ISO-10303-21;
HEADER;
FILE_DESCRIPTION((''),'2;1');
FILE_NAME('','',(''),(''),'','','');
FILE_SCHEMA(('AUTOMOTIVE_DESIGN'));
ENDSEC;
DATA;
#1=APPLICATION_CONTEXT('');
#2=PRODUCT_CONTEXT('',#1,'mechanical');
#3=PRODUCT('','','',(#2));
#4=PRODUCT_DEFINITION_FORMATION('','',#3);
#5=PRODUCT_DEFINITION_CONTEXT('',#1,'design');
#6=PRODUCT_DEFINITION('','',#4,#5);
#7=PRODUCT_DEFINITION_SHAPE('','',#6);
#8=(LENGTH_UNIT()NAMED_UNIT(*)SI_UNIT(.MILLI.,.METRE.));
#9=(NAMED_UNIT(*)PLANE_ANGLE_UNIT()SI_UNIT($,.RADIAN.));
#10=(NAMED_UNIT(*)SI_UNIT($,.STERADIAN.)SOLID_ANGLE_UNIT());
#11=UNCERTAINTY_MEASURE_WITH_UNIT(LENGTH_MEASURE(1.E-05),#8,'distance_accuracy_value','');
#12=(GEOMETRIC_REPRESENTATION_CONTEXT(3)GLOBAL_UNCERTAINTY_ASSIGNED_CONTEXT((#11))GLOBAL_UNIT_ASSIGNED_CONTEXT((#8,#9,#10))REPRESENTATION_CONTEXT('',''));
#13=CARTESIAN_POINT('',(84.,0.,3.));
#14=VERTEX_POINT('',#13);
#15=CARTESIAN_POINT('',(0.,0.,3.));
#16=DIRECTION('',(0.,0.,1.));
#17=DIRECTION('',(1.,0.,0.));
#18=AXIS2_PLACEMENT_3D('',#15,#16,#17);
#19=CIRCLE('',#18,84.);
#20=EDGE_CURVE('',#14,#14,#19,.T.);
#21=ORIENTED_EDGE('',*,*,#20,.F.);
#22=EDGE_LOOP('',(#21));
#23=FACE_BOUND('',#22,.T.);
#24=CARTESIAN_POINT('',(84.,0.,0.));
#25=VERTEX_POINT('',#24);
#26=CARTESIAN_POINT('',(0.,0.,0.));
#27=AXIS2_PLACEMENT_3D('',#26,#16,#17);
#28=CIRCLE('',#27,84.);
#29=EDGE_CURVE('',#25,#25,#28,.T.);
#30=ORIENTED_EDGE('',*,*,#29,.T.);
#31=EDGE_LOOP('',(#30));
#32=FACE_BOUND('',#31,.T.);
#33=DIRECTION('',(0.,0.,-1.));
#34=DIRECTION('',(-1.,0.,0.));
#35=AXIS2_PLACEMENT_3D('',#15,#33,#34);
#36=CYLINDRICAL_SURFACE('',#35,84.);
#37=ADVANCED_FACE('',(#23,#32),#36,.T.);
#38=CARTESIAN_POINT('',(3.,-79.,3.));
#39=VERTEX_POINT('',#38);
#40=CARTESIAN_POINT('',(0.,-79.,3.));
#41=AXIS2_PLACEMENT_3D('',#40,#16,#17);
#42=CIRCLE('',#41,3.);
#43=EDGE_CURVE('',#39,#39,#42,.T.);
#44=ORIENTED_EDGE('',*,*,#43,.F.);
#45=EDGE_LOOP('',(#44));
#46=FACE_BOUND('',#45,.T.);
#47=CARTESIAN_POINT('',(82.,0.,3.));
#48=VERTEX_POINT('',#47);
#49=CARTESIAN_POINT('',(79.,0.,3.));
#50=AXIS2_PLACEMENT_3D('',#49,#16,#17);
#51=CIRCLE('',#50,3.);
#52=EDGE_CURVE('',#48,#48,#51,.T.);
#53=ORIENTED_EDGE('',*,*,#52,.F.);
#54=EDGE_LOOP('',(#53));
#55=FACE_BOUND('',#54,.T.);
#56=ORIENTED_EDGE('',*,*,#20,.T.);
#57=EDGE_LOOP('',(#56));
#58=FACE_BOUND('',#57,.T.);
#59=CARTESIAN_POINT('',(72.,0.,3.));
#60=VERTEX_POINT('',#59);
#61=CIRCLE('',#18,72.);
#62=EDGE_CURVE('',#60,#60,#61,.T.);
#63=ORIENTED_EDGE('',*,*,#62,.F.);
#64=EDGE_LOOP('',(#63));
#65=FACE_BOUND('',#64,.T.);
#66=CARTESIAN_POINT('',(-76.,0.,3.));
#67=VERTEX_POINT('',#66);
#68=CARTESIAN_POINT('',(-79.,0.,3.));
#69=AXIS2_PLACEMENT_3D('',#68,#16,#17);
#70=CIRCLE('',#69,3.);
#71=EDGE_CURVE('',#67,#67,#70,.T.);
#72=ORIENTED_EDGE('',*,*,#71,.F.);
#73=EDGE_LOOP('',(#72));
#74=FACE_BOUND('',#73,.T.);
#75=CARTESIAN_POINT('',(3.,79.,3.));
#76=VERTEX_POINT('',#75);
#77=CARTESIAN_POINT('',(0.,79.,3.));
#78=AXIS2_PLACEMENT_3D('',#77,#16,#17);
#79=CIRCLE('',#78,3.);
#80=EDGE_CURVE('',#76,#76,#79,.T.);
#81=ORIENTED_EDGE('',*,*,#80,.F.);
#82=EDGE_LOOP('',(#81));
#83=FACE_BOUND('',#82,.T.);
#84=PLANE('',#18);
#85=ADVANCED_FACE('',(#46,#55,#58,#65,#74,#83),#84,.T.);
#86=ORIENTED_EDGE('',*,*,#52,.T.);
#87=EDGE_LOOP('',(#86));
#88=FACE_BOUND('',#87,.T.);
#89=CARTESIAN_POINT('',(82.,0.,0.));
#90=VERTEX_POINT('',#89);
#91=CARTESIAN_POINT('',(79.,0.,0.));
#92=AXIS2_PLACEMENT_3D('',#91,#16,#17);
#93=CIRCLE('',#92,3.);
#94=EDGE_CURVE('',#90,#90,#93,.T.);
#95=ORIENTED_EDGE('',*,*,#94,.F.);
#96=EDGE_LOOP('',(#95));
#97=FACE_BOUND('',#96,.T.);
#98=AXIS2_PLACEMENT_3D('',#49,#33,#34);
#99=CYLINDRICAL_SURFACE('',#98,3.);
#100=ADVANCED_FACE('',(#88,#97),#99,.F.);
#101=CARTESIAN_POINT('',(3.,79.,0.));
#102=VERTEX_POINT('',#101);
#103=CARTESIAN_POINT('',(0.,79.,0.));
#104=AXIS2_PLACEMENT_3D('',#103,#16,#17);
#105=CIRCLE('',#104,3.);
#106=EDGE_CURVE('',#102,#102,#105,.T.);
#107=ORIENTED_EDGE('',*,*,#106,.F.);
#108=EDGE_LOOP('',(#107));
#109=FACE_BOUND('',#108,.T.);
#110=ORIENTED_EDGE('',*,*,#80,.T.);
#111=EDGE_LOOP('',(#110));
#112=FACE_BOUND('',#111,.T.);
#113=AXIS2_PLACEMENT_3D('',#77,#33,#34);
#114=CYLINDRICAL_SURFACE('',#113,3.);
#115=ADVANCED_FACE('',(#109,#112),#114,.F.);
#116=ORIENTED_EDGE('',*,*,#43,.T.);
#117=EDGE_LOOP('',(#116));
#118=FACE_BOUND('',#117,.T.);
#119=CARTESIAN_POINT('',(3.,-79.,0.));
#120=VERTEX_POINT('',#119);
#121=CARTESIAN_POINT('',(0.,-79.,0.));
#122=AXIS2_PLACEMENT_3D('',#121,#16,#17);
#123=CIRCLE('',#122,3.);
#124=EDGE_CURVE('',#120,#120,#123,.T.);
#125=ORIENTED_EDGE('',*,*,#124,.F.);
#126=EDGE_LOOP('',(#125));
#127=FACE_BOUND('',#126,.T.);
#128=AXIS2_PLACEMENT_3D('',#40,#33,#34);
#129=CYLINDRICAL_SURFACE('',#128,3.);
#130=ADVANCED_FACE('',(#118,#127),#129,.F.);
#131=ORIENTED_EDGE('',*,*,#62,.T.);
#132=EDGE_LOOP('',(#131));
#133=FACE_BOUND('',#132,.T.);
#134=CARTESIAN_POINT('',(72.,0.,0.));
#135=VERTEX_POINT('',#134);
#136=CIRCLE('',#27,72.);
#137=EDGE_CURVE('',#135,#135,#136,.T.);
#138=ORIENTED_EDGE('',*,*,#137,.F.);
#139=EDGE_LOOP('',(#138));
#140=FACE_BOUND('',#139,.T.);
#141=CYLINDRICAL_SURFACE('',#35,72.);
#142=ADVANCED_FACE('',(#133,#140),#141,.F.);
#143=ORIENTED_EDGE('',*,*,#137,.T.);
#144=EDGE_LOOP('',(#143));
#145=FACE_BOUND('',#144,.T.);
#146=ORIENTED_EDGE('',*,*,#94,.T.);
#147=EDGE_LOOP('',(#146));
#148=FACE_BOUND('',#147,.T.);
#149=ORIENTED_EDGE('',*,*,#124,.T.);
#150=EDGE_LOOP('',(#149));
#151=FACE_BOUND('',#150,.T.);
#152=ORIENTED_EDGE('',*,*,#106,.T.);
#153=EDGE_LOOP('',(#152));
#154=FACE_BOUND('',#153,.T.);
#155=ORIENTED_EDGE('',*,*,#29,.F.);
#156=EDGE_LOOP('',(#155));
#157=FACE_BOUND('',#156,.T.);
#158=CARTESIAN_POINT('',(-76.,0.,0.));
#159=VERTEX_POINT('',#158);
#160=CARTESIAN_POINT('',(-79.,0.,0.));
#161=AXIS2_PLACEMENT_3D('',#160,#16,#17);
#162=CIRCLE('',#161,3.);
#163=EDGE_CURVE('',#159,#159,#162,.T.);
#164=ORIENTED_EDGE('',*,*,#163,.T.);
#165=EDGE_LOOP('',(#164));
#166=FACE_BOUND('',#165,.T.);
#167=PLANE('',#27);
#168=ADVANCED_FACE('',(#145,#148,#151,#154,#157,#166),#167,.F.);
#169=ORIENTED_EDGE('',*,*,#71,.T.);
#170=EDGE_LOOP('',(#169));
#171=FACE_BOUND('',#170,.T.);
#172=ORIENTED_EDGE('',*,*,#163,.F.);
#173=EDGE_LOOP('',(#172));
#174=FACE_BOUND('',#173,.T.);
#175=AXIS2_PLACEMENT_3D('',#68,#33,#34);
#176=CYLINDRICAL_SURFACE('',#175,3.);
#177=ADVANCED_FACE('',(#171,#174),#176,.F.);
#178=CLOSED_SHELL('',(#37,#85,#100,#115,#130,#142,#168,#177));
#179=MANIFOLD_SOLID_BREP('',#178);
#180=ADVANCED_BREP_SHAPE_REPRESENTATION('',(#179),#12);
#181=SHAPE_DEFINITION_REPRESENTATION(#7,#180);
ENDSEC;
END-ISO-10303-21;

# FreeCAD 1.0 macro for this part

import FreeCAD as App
import Part
import Sketcher
from FreeCAD import Vector

doc = App.newDocument("Part")
body = doc.addObject("PartDesign::Body", "Body")

# Sketch on XY plane
sketch1 = doc.addObject("Sketcher::SketchObject", "Sketch")
body.addObject(sketch1)
sketch1.AttachmentSupport = (doc.XY_Plane, [""])
sketch1.MapMode = "FlatFace"
sketch1.addGeometry([
    Part.Circle(Vector(0, 0, 0), Vector(0, 0, 1), 84),  # 0
    Part.Circle(Vector(0, -79, 0), Vector(0, 0, 1), 3),  # 1
    Part.Circle(Vector(-79, 0, 0), Vector(0, 0, 1), 3),  # 2
    Part.Circle(Vector(0, 0, 0), Vector(0, 0, 1), 72),  # 3
    Part.Circle(Vector(79, 0, 0), Vector(0, 0, 1), 3),  # 4
    Part.Circle(Vector(0, 79, 0), Vector(0, 0, 1), 3),  # 5
], False)
sketch1.addConstraint([
    Sketcher.Constraint("Coincident", 0, 3, -1, 1),
    Sketcher.Constraint("Coincident", 3, 3, -1, 1),
    Sketcher.Constraint("Equal", 1, 2),
    Sketcher.Constraint("Equal", 2, 4),
    Sketcher.Constraint("Equal", 4, 5),
    Sketcher.Constraint("Symmetric", 2, 3, 4, 3, -1, 1),
    Sketcher.Constraint("Symmetric", 1, 3, 5, 3, -1, 1),
    Sketcher.Constraint("PointOnObject", 1, 3, -2),
    Sketcher.Constraint("PointOnObject", 2, 3, -1),
    Sketcher.Constraint("Diameter", 0, 168.0),
    Sketcher.Constraint("Diameter", 1, 6.0),
    Sketcher.Constraint("Diameter", 3, 144.0),
    Sketcher.Constraint("DistanceY", 1, 3, -1, 1, 79.0),
    Sketcher.Constraint("DistanceX", 2, 3, -1, 1, 79.0),
])
pad1 = doc.addObject("PartDesign::Pad", "Pad")
body.addObject(pad1)
pad1.Profile = sketch1
pad1.Length = 3

doc.recompute()
